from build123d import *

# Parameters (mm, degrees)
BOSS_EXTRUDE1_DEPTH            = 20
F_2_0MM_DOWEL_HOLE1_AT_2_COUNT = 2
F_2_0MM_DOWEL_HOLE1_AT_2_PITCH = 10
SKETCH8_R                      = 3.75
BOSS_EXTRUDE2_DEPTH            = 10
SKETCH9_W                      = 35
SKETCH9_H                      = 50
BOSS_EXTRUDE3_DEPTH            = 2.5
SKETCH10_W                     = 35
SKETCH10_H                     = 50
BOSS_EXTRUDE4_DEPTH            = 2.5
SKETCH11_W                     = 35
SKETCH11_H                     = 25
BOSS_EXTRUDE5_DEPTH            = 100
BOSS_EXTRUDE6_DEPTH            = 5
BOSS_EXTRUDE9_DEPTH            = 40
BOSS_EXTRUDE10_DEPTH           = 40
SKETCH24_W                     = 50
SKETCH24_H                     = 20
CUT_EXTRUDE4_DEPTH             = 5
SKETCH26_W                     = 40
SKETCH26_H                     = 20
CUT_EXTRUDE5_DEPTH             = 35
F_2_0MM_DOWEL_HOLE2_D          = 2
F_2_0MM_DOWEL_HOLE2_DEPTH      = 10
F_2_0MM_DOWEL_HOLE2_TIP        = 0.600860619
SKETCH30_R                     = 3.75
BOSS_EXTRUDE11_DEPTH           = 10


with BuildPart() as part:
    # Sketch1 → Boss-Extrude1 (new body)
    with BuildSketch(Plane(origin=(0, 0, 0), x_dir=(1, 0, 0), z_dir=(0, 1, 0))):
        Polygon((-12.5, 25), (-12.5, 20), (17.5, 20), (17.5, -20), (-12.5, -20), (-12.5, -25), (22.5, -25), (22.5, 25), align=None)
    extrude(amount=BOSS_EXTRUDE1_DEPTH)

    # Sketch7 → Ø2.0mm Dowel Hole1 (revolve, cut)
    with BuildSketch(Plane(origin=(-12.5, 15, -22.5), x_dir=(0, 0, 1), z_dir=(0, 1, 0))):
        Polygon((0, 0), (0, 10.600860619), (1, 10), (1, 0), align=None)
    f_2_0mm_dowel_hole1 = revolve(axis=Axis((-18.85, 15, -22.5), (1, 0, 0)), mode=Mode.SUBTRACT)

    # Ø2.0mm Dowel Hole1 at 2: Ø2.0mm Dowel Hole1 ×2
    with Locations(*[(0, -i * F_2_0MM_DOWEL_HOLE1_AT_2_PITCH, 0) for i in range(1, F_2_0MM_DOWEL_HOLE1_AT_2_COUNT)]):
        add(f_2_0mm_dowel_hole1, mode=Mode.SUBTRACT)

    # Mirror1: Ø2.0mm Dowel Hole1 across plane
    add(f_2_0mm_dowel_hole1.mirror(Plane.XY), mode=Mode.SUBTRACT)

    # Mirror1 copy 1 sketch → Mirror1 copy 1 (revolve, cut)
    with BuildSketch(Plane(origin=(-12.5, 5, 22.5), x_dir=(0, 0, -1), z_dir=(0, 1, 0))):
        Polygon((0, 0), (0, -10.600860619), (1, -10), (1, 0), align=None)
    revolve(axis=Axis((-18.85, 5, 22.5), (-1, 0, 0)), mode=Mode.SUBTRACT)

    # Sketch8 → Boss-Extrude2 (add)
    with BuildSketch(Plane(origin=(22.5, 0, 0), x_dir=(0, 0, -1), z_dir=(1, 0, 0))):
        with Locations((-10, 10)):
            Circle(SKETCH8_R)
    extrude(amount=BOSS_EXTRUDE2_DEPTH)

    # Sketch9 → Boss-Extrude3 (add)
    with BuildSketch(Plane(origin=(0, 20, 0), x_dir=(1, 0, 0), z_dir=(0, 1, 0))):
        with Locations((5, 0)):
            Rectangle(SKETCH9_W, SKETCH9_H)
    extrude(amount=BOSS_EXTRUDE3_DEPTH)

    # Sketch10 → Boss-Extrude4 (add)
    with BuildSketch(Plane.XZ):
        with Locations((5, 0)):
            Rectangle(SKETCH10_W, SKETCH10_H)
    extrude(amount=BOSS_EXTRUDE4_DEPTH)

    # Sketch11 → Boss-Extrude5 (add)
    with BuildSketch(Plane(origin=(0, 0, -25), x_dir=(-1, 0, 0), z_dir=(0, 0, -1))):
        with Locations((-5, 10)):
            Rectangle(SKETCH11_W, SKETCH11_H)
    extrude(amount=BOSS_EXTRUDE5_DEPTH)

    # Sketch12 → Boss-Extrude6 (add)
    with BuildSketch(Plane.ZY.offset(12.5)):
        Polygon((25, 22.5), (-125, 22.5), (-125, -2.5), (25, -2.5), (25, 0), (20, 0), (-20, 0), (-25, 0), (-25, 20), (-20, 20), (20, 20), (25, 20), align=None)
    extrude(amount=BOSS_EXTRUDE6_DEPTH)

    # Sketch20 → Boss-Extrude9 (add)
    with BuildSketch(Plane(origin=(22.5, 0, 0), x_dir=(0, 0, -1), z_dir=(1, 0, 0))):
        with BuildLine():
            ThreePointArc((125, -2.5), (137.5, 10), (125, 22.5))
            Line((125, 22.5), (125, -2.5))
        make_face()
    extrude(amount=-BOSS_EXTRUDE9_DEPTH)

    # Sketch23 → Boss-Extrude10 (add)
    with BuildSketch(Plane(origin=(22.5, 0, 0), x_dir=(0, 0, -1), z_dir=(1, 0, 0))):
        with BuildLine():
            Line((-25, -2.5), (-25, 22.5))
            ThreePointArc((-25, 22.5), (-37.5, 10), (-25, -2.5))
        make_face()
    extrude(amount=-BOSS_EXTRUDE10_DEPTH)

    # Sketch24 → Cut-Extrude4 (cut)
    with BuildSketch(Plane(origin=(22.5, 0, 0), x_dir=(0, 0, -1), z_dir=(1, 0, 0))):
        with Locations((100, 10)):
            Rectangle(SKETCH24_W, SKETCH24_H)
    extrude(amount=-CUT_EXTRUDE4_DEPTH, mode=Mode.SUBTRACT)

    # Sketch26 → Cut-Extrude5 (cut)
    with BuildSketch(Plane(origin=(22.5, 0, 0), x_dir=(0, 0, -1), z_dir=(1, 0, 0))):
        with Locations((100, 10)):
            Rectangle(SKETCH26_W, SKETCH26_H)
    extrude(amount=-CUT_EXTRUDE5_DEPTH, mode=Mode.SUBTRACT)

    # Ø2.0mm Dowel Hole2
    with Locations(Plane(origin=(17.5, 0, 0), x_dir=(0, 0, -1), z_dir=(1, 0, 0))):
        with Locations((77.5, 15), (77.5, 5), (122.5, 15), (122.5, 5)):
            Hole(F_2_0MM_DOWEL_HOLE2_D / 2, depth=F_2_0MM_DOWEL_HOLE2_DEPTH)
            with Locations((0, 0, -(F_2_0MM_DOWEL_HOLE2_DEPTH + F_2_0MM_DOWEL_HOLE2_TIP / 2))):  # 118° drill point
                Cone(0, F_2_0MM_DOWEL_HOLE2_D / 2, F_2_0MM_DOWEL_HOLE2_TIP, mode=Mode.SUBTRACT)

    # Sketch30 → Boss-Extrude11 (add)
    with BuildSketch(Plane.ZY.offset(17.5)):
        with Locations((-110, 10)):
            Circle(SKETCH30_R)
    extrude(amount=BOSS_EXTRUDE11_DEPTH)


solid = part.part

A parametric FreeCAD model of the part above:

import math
import FreeCAD as App
import Part
import Sketcher
Q = App.Units.Quantity

doc = App.newDocument("Part")
body = doc.addObject("PartDesign::Body", "Body")

# Sketch on XZ plane
sketch1 = body.newObject("Sketcher::SketchObject", "Sketch")
sketch1.AttachmentSupport = (doc.getObject("XZ_Plane"), [""])
sketch1.MapMode = "FlatFace"
sketch1.addGeometry([
    Part.LineSegment(App.Vector(-12.5, -25, 0), App.Vector(-12.5, -20, 0)),  # 0
    Part.LineSegment(App.Vector(-12.5, -20, 0), App.Vector(17.5, -20, 0)),  # 1
    Part.LineSegment(App.Vector(17.5, -20, 0), App.Vector(17.5, 20, 0)),  # 2
    Part.LineSegment(App.Vector(17.5, 20, 0), App.Vector(-12.5, 20, 0)),  # 3
    Part.LineSegment(App.Vector(-12.5, 20, 0), App.Vector(-12.5, 25, 0)),  # 4
    Part.LineSegment(App.Vector(-12.5, 25, 0), App.Vector(22.5, 25, 0)),  # 5
    Part.LineSegment(App.Vector(22.5, 25, 0), App.Vector(22.5, -25, 0)),  # 6
    Part.LineSegment(App.Vector(22.5, -25, 0), App.Vector(-12.5, -25, 0)),  # 7
], False)
sketch1.addConstraint([
    Sketcher.Constraint("Coincident", 0, 2, 1, 1),
    Sketcher.Constraint("Coincident", 1, 2, 2, 1),
    Sketcher.Constraint("Coincident", 2, 2, 3, 1),
    Sketcher.Constraint("Coincident", 3, 2, 4, 1),
    Sketcher.Constraint("Coincident", 4, 2, 5, 1),
    Sketcher.Constraint("Coincident", 5, 2, 6, 1),
    Sketcher.Constraint("Coincident", 6, 2, 7, 1),
    Sketcher.Constraint("Coincident", 7, 2, 0, 1),
    Sketcher.Constraint("Vertical", 0),
    Sketcher.Constraint("Horizontal", 1),
    Sketcher.Constraint("Vertical", 2),
    Sketcher.Constraint("Horizontal", 3),
    Sketcher.Constraint("Vertical", 4),
    Sketcher.Constraint("Horizontal", 5),
    Sketcher.Constraint("Vertical", 6),
    Sketcher.Constraint("Horizontal", 7),
    Sketcher.Constraint("Symmetric", 0, 2, 3, 2, -1),
    Sketcher.Constraint("Equal", 0, 4),
    Sketcher.Constraint("DistanceX", 1, 1, 1, 2, Q("30 mm")),
    Sketcher.Constraint("DistanceX", 5, 1, 5, 2, Q("35 mm")),
    Sketcher.Constraint("DistanceY", 0, 1, 0, 2, Q("5 mm")),
    Sketcher.Constraint("DistanceY", 2, 1, 2, 2, Q("40 mm")),
    Sketcher.Constraint("DistanceX", 0, 2, -1, 1, Q("12.5 mm")),
])
pad1 = body.newObject("PartDesign::Pad", "Pad")
pad1.Profile = sketch1
pad1.Length = 20
pad1.Reversed = True

# Sketch on XZ plane
sketch2 = body.newObject("Sketcher::SketchObject", "Sketch001")
sketch2.AttachmentSupport = (doc.getObject("XZ_Plane"), [""])
sketch2.MapMode = "FlatFace"
sketch2.AttachmentOffset = App.Placement(App.Vector(0, 0, -15), App.Rotation())
sketch2.addGeometry([
    Part.LineSegment(App.Vector(-1.899139, -22.5, 0), App.Vector(-12.5, -22.5, 0)),
    Part.LineSegment(App.Vector(-12.5, -22.5, 0), App.Vector(-12.5, -21.5, 0)),
    Part.LineSegment(App.Vector(-12.5, -21.5, 0), App.Vector(-2.5, -21.5, 0)),
    Part.LineSegment(App.Vector(-2.5, -21.5, 0), App.Vector(-1.899139, -22.5, 0)),
], False)
sketch2.addGeometry(Part.LineSegment(App.Vector(-12.5, -22.5, 0), App.Vector(-1.899139, -22.5, 0)), True)  # axis
sketch2.addConstraint([
    Sketcher.Constraint("Coincident", 0, 2, 1, 1),
    Sketcher.Constraint("Coincident", 1, 2, 2, 1),
    Sketcher.Constraint("Coincident", 2, 2, 3, 1),
    Sketcher.Constraint("Coincident", 3, 2, 0, 1),
    Sketcher.Constraint("Horizontal", 0),
    Sketcher.Constraint("Vertical", 1),
    Sketcher.Constraint("Horizontal", 2),
    Sketcher.Constraint("Horizontal", 4),
    Sketcher.Constraint("Coincident", 4, 1, 0, 2),
    Sketcher.Constraint("Equal", 0, 4),
    Sketcher.Constraint("DistanceX", 2, 1, 2, 2, Q("10 mm")),
    Sketcher.Constraint("DistanceY", 1, 1, 1, 2, Q("1 mm")),
    Sketcher.Constraint("Angle", 3, Q("-59 deg")),
    Sketcher.Constraint("DistanceX", 0, 2, -1, 1, Q("12.5 mm")),
    Sketcher.Constraint("DistanceY", 0, 2, -1, 1, Q("22.5 mm")),
])
groove = body.newObject("PartDesign::Groove", "Groove")
groove.Profile = sketch2
groove.ReferenceAxis = (sketch2, ["Axis0"])
groove.Angle = 360
doc.recompute()

linearpattern = body.newObject("PartDesign::LinearPattern", "LinearPattern")
linearpattern.Originals = [groove]
linearpattern.Direction = (doc.getObject("Y_Axis"), [""])
linearpattern.Mode = "offset"
linearpattern.Offset = 10
linearpattern.Occurrences = 2
linearpattern.Reversed = True
body.Tip = linearpattern
doc.recompute()

mirrored = body.newObject("PartDesign::Mirrored", "Mirrored")
mirrored.Originals = [groove]
mirrored.MirrorPlane = (doc.getObject("XY_Plane"), [""])
body.Tip = mirrored

# Sketch on XZ plane
sketch3 = body.newObject("Sketcher::SketchObject", "Sketch002")
sketch3.AttachmentSupport = (doc.getObject("XZ_Plane"), [""])
sketch3.MapMode = "FlatFace"
sketch3.AttachmentOffset = App.Placement(App.Vector(0, 0, -5), App.Rotation())
sketch3.addGeometry([
    Part.LineSegment(App.Vector(-12.5, 22.5, 0), App.Vector(-1.899139, 22.5, 0)),
    Part.LineSegment(App.Vector(-1.899139, 22.5, 0), App.Vector(-2.5, 21.5, 0)),
    Part.LineSegment(App.Vector(-2.5, 21.5, 0), App.Vector(-12.5, 21.5, 0)),
    Part.LineSegment(App.Vector(-12.5, 21.5, 0), App.Vector(-12.5, 22.5, 0)),
], False)
sketch3.addGeometry(Part.LineSegment(App.Vector(-1.899139, 22.5, 0), App.Vector(-12.5, 22.5, 0)), True)  # axis
sketch3.addConstraint([
    Sketcher.Constraint("Coincident", 0, 2, 1, 1),
    Sketcher.Constraint("Coincident", 1, 2, 2, 1),
    Sketcher.Constraint("Coincident", 2, 2, 3, 1),
    Sketcher.Constraint("Coincident", 3, 2, 0, 1),
    Sketcher.Constraint("Horizontal", 0),
    Sketcher.Constraint("Horizontal", 2),
    Sketcher.Constraint("Vertical", 3),
    Sketcher.Constraint("Horizontal", 4),
    Sketcher.Constraint("Coincident", 4, 1, 0, 2),
    Sketcher.Constraint("Vertical", 2, 2, 4, 2),
    Sketcher.Constraint("DistanceX", 2, 2, 2, 1, Q("10 mm")),
    Sketcher.Constraint("DistanceY", 3, 1, 3, 2, Q("1 mm")),
    Sketcher.Constraint("Angle", 1, Q("-121 deg")),
    Sketcher.Constraint("DistanceY", -1, 1, 0, 2, Q("22.5 mm")),
    Sketcher.Constraint("DistanceX", 1, 2, -1, 1, Q("2.5 mm")),
])
groove2 = body.newObject("PartDesign::Groove", "Groove001")
groove2.Profile = sketch3
groove2.ReferenceAxis = (sketch3, ["Axis0"])
groove2.Angle = 360

# Sketch on YZ plane
sketch4 = body.newObject("Sketcher::SketchObject", "Sketch003")
sketch4.AttachmentSupport = (doc.getObject("YZ_Plane"), [""])
sketch4.MapMode = "FlatFace"
sketch4.AttachmentOffset = App.Placement(App.Vector(0, 0, 22.5), App.Rotation())
sketch4.addGeometry(Part.Circle(App.Vector(10, 10, 0), App.Vector(0, 0, 1), 3.75), False)
sketch4.addConstraint([
    Sketcher.Constraint("Diameter", 0, Q("7.5 mm")),
    Sketcher.Constraint("DistanceX", -1, 1, 0, 3, Q("10 mm")),
    Sketcher.Constraint("DistanceY", -1, 1, 0, 3, Q("10 mm")),
])
pad2 = body.newObject("PartDesign::Pad", "Pad001")
pad2.Profile = sketch4
pad2.Length = 10

# Sketch on XZ plane
sketch5 = body.newObject("Sketcher::SketchObject", "Sketch004")
sketch5.AttachmentSupport = (doc.getObject("XZ_Plane"), [""])
sketch5.MapMode = "FlatFace"
sketch5.AttachmentOffset = App.Placement(App.Vector(0, 0, -20), App.Rotation())
sketch5.addGeometry([
    Part.LineSegment(App.Vector(-12.5, -25, 0), App.Vector(-12.5, 25, 0)),
    Part.LineSegment(App.Vector(-12.5, 25, 0), App.Vector(22.5, 25, 0)),
    Part.LineSegment(App.Vector(22.5, 25, 0), App.Vector(22.5, -25, 0)),
    Part.LineSegment(App.Vector(22.5, -25, 0), App.Vector(-12.5, -25, 0)),
], False)
sketch5.addConstraint([
    Sketcher.Constraint("Coincident", 0, 2, 1, 1),
    Sketcher.Constraint("Coincident", 1, 2, 2, 1),
    Sketcher.Constraint("Coincident", 2, 2, 3, 1),
    Sketcher.Constraint("Coincident", 3, 2, 0, 1),
    Sketcher.Constraint("Vertical", 0),
    Sketcher.Constraint("Horizontal", 1),
    Sketcher.Constraint("Vertical", 2),
    Sketcher.Constraint("Horizontal", 3),
    Sketcher.Constraint("DistanceX", 1, 1, 1, 2, Q("35 mm")),
    Sketcher.Constraint("DistanceY", 0, 1, 0, 2, Q("50 mm")),
    Sketcher.Constraint("DistanceY", -1, 1, 0, 2, Q("25 mm")),
    Sketcher.Constraint("DistanceX", 0, 2, -1, 1, Q("12.5 mm")),
])
pad3 = body.newObject("PartDesign::Pad", "Pad002")
pad3.Profile = sketch5
pad3.Length = 2.5
pad3.Reversed = True

# Sketch on XZ plane
sketch6 = body.newObject("Sketcher::SketchObject", "Sketch005")
sketch6.AttachmentSupport = (doc.getObject("XZ_Plane"), [""])
sketch6.MapMode = "FlatFace"
sketch6.addGeometry([
    Part.LineSegment(App.Vector(-12.5, 25, 0), App.Vector(-12.5, -25, 0)),
    Part.LineSegment(App.Vector(-12.5, -25, 0), App.Vector(22.5, -25, 0)),
    Part.LineSegment(App.Vector(22.5, -25, 0), App.Vector(22.5, 25, 0)),
    Part.LineSegment(App.Vector(22.5, 25, 0), App.Vector(-12.5, 25, 0)),
], False)
sketch6.addConstraint([
    Sketcher.Constraint("Coincident", 0, 2, 1, 1),
    Sketcher.Constraint("Coincident", 1, 2, 2, 1),
    Sketcher.Constraint("Coincident", 2, 2, 3, 1),
    Sketcher.Constraint("Coincident", 3, 2, 0, 1),
    Sketcher.Constraint("Vertical", 0),
    Sketcher.Constraint("Horizontal", 1),
    Sketcher.Constraint("Vertical", 2),
    Sketcher.Constraint("Horizontal", 3),
    Sketcher.Constraint("DistanceX", 1, 1, 1, 2, Q("35 mm")),
    Sketcher.Constraint("DistanceY", 0, 2, 0, 1, Q("50 mm")),
    Sketcher.Constraint("DistanceY", 0, 2, -1, 1, Q("25 mm")),
    Sketcher.Constraint("DistanceX", 0, 2, -1, 1, Q("12.5 mm")),
])
pad4 = body.newObject("PartDesign::Pad", "Pad003")
pad4.Profile = sketch6
pad4.Length = 2.5

# Sketch on XY plane
sketch7 = body.newObject("Sketcher::SketchObject", "Sketch006")
sketch7.AttachmentSupport = (doc.getObject("XY_Plane"), [""])
sketch7.MapMode = "FlatFace"
sketch7.AttachmentOffset = App.Placement(App.Vector(0, 0, -25), App.Rotation())
sketch7.addGeometry([
    Part.LineSegment(App.Vector(22.5, 22.5, 0), App.Vector(22.5, -2.5, 0)),
    Part.LineSegment(App.Vector(22.5, -2.5, 0), App.Vector(-12.5, -2.5, 0)),
    Part.LineSegment(App.Vector(-12.5, -2.5, 0), App.Vector(-12.5, 22.5, 0)),
    Part.LineSegment(App.Vector(-12.5, 22.5, 0), App.Vector(22.5, 22.5, 0)),
], False)
sketch7.addConstraint([
    Sketcher.Constraint("Coincident", 0, 2, 1, 1),
    Sketcher.Constraint("Coincident", 1, 2, 2, 1),
    Sketcher.Constraint("Coincident", 2, 2, 3, 1),
    Sketcher.Constraint("Coincident", 3, 2, 0, 1),
    Sketcher.Constraint("Vertical", 0),
    Sketcher.Constraint("Horizontal", 1),
    Sketcher.Constraint("Vertical", 2),
    Sketcher.Constraint("Horizontal", 3),
    Sketcher.Constraint("DistanceX", 1, 2, 1, 1, Q("35 mm")),
    Sketcher.Constraint("DistanceY", 0, 2, 0, 1, Q("25 mm")),
    Sketcher.Constraint("DistanceX", -1, 1, 0, 2, Q("22.5 mm")),
    Sketcher.Constraint("DistanceY", 0, 2, -1, 1, Q("2.5 mm")),
])
pad5 = body.newObject("PartDesign::Pad", "Pad004")
pad5.Profile = sketch7
pad5.Length = 100
pad5.Reversed = True

# Sketch on YZ plane
sketch8 = body.newObject("Sketcher::SketchObject", "Sketch007")
sketch8.AttachmentSupport = (doc.getObject("YZ_Plane"), [""])
sketch8.MapMode = "FlatFace"
sketch8.AttachmentOffset = App.Placement(App.Vector(0, 0, -12.5), App.Rotation())
sketch8.addGeometry([
    Part.LineSegment(App.Vector(22.5, 25, 0), App.Vector(22.5, -125, 0)),  # 0
    Part.LineSegment(App.Vector(22.5, -125, 0), App.Vector(-2.5, -125, 0)),  # 1
    Part.LineSegment(App.Vector(-2.5, -125, 0), App.Vector(-2.5, 25, 0)),  # 2
    Part.LineSegment(App.Vector(-2.5, 25, 0), App.Vector(0, 25, 0)),  # 3
    Part.LineSegment(App.Vector(0, 25, 0), App.Vector(0, -25, 0)),  # 4
    Part.LineSegment(App.Vector(0, -25, 0), App.Vector(20, -25, 0)),  # 5
    Part.LineSegment(App.Vector(20, -25, 0), App.Vector(20, 25, 0)),  # 6
    Part.LineSegment(App.Vector(20, 25, 0), App.Vector(22.5, 25, 0)),  # 7
], False)
sketch8.addConstraint([
    Sketcher.Constraint("Coincident", 0, 2, 1, 1),
    Sketcher.Constraint("Coincident", 1, 2, 2, 1),
    Sketcher.Constraint("Coincident", 2, 2, 3, 1),
    Sketcher.Constraint("Coincident", 3, 2, 4, 1),
    Sketcher.Constraint("Coincident", 4, 2, 5, 1),
    Sketcher.Constraint("Coincident", 5, 2, 6, 1),
    Sketcher.Constraint("Coincident", 6, 2, 7, 1),
    Sketcher.Constraint("Coincident", 7, 2, 0, 1),
    Sketcher.Constraint("Vertical", 0),
    Sketcher.Constraint("Horizontal", 1),
    Sketcher.Constraint("Vertical", 2),
    Sketcher.Constraint("Horizontal", 3),
    Sketcher.Constraint("Vertical", 4),
    Sketcher.Constraint("Horizontal", 5),
    Sketcher.Constraint("Vertical", 6),
    Sketcher.Constraint("Horizontal", 7),
    Sketcher.Constraint("Symmetric", 3, 2, 4, 2, -1, 1),
    Sketcher.Constraint("Horizontal", 3, 2, 6, 2),
    Sketcher.Constraint("Equal", 3, 7),
    Sketcher.Constraint("DistanceX", 1, 2, 1, 1, Q("25 mm")),
    Sketcher.Constraint("DistanceX", 5, 1, 5, 2, Q("20 mm")),
    Sketcher.Constraint("DistanceY", 0, 2, 0, 1, Q("150 mm")),
    Sketcher.Constraint("DistanceY", 4, 2, 4, 1, Q("50 mm")),
])
pad6 = body.newObject("PartDesign::Pad", "Pad005")
pad6.Profile = sketch8
pad6.Length = 5
pad6.Reversed = True

# Sketch on YZ plane
sketch9 = body.newObject("Sketcher::SketchObject", "Sketch008")
sketch9.AttachmentSupport = (doc.getObject("YZ_Plane"), [""])
sketch9.MapMode = "FlatFace"
sketch9.AttachmentOffset = App.Placement(App.Vector(0, 0, 22.5), App.Rotation())
sketch9.addGeometry([
    Part.ArcOfCircle(Part.Circle(App.Vector(10, -125, 0), App.Vector(0, 0, 1), 12.5), math.radians(180), math.radians(360)),
    Part.LineSegment(App.Vector(22.5, -125, 0), App.Vector(-2.5, -125, 0)),
], False)
sketch9.addConstraint([
    Sketcher.Constraint("Coincident", 0, 1, 1, 2),
    Sketcher.Constraint("Coincident", 1, 1, 0, 2),
    Sketcher.Constraint("Horizontal", 1),
    Sketcher.Constraint("Radius", 0, Q("12.5 mm")),
    Sketcher.Constraint("DistanceX", -1, 1, 0, 3, Q("10 mm")),
    Sketcher.Constraint("DistanceY", 0, 3, -1, 1, Q("125 mm")),
    Sketcher.Constraint("DistanceY", 0, 1, -1, 1, Q("125 mm")),
])
pad7 = body.newObject("PartDesign::Pad", "Pad006")
pad7.Profile = sketch9
pad7.Length = 40
pad7.Reversed = True

# Sketch on YZ plane
sketch10 = body.newObject("Sketcher::SketchObject", "Sketch009")
sketch10.AttachmentSupport = (doc.getObject("YZ_Plane"), [""])
sketch10.MapMode = "FlatFace"
sketch10.AttachmentOffset = App.Placement(App.Vector(0, 0, 22.5), App.Rotation())
sketch10.addGeometry([
    Part.LineSegment(App.Vector(-2.5, 25, 0), App.Vector(22.5, 25, 0)),
    Part.ArcOfCircle(Part.Circle(App.Vector(10, 25, 0), App.Vector(0, 0, 1), 12.5), math.radians(0), math.radians(180)),
], False)
sketch10.addConstraint([
    Sketcher.Constraint("Coincident", 0, 1, 1, 2),
    Sketcher.Constraint("Coincident", 1, 1, 0, 2),
    Sketcher.Constraint("Horizontal", 0),
    Sketcher.Constraint("Horizontal", 1, 3, 0, 1),
    Sketcher.Constraint("Radius", 1, Q("12.5 mm")),
    Sketcher.Constraint("DistanceX", -1, 1, 1, 3, Q("10 mm")),
    Sketcher.Constraint("DistanceY", -1, 1, 1, 3, Q("25 mm")),
])
pad8 = body.newObject("PartDesign::Pad", "Pad007")
pad8.Profile = sketch10
pad8.Length = 40
pad8.Reversed = True

# Sketch on YZ plane
sketch11 = body.newObject("Sketcher::SketchObject", "Sketch010")
sketch11.AttachmentSupport = (doc.getObject("YZ_Plane"), [""])
sketch11.MapMode = "FlatFace"
sketch11.AttachmentOffset = App.Placement(App.Vector(0, 0, 22.5), App.Rotation())
sketch11.addGeometry([
    Part.LineSegment(App.Vector(20, -75, 0), App.Vector(0, -75, 0)),
    Part.LineSegment(App.Vector(0, -75, 0), App.Vector(0, -125, 0)),
    Part.LineSegment(App.Vector(0, -125, 0), App.Vector(20, -125, 0)),
    Part.LineSegment(App.Vector(20, -125, 0), App.Vector(20, -75, 0)),
], False)
sketch11.addConstraint([
    Sketcher.Constraint("Coincident", 0, 2, 1, 1),
    Sketcher.Constraint("Coincident", 1, 2, 2, 1),
    Sketcher.Constraint("Coincident", 2, 2, 3, 1),
    Sketcher.Constraint("Coincident", 3, 2, 0, 1),
    Sketcher.Constraint("Horizontal", 0),
    Sketcher.Constraint("Vertical", 1),
    Sketcher.Constraint("Horizontal", 2),
    Sketcher.Constraint("Vertical", 3),
    Sketcher.Constraint("PointOnObject", 0, 2, -2),
    Sketcher.Constraint("DistanceX", 0, 2, 0, 1, Q("20 mm")),
    Sketcher.Constraint("DistanceY", 1, 2, 1, 1, Q("50 mm")),
    Sketcher.Constraint("DistanceY", 0, 2, -1, 1, Q("75 mm")),
])
pocket1 = body.newObject("PartDesign::Pocket", "Pocket")
pocket1.Profile = sketch11
pocket1.Length = 5

# Sketch on YZ plane
sketch12 = body.newObject("Sketcher::SketchObject", "Sketch011")
sketch12.AttachmentSupport = (doc.getObject("YZ_Plane"), [""])
sketch12.MapMode = "FlatFace"
sketch12.AttachmentOffset = App.Placement(App.Vector(0, 0, 22.5), App.Rotation())
sketch12.addGeometry([
    Part.LineSegment(App.Vector(20, -80, 0), App.Vector(0, -80, 0)),
    Part.LineSegment(App.Vector(0, -80, 0), App.Vector(0, -120, 0)),
    Part.LineSegment(App.Vector(0, -120, 0), App.Vector(20, -120, 0)),
    Part.LineSegment(App.Vector(20, -120, 0), App.Vector(20, -80, 0)),
], False)
sketch12.addConstraint([
    Sketcher.Constraint("Coincident", 0, 2, 1, 1),
    Sketcher.Constraint("Coincident", 1, 2, 2, 1),
    Sketcher.Constraint("Coincident", 2, 2, 3, 1),
    Sketcher.Constraint("Coincident", 3, 2, 0, 1),
    Sketcher.Constraint("Horizontal", 0),
    Sketcher.Constraint("Vertical", 1),
    Sketcher.Constraint("Horizontal", 2),
    Sketcher.Constraint("Vertical", 3),
    Sketcher.Constraint("PointOnObject", 0, 2, -2),
    Sketcher.Constraint("DistanceX", 0, 2, 0, 1, Q("20 mm")),
    Sketcher.Constraint("DistanceY", 1, 2, 1, 1, Q("40 mm")),
    Sketcher.Constraint("DistanceY", 0, 2, -1, 1, Q("80 mm")),
])
pocket2 = body.newObject("PartDesign::Pocket", "Pocket001")
pocket2.Profile = sketch12
pocket2.Length = 35

# Sketch on YZ plane
sketch13 = body.newObject("Sketcher::SketchObject", "Sketch012")
sketch13.AttachmentSupport = (doc.getObject("YZ_Plane"), [""])
sketch13.MapMode = "FlatFace"
sketch13.AttachmentOffset = App.Placement(App.Vector(0, 0, 17.5), App.Rotation())
sketch13.addGeometry([
    Part.Circle(App.Vector(15, -77.5, 0), App.Vector(0, 0, 1), 1),
    Part.Circle(App.Vector(5, -77.5, 0), App.Vector(0, 0, 1), 1),
    Part.Circle(App.Vector(15, -122.5, 0), App.Vector(0, 0, 1), 1),
    Part.Circle(App.Vector(5, -122.5, 0), App.Vector(0, 0, 1), 1),
], False)
sketch13.addConstraint([
    Sketcher.Constraint("Equal", 0, 1),
    Sketcher.Constraint("Equal", 1, 2),
    Sketcher.Constraint("Equal", 2, 3),
    Sketcher.Constraint("Horizontal", 0, 3, 1, 3),
    Sketcher.Constraint("Horizontal", 2, 3, 3, 3),
    Sketcher.Constraint("Vertical", 0, 3, 2, 3),
    Sketcher.Constraint("Vertical", 1, 3, 3, 3),
    Sketcher.Constraint("Diameter", 0, Q("2 mm")),
    Sketcher.Constraint("DistanceX", -1, 1, 0, 3, Q("15 mm")),
    Sketcher.Constraint("DistanceX", -1, 1, 1, 3, Q("5 mm")),
    Sketcher.Constraint("DistanceY", 2, 3, 0, 3, Q("45 mm")),
    Sketcher.Constraint("DistanceY", 0, 3, -1, 1, Q("77.5 mm")),
])
doc.recompute()
hole = body.newObject("PartDesign::Hole", "Hole")
hole.Profile = sketch13
hole.ThreadType = "None"
hole.Diameter = 2
hole.DepthType = "Dimension"
hole.Depth = 10
hole.DrillPoint = "Angled"
hole.DrillPointAngle = 118

# Sketch on YZ plane
sketch14 = body.newObject("Sketcher::SketchObject", "Sketch013")
sketch14.AttachmentSupport = (doc.getObject("YZ_Plane"), [""])
sketch14.MapMode = "FlatFace"
sketch14.AttachmentOffset = App.Placement(App.Vector(0, 0, -17.5), App.Rotation())
sketch14.addGeometry(Part.Circle(App.Vector(10, -110, 0), App.Vector(0, 0, 1), 3.75), False)
sketch14.addConstraint([
    Sketcher.Constraint("Diameter", 0, Q("7.5 mm")),
    Sketcher.Constraint("DistanceX", -1, 1, 0, 3, Q("10 mm")),
    Sketcher.Constraint("DistanceY", 0, 3, -1, 1, Q("110 mm")),
])
pad9 = body.newObject("PartDesign::Pad", "Pad008")
pad9.Profile = sketch14
pad9.Length = 10
pad9.Reversed = True

doc.recompute()
